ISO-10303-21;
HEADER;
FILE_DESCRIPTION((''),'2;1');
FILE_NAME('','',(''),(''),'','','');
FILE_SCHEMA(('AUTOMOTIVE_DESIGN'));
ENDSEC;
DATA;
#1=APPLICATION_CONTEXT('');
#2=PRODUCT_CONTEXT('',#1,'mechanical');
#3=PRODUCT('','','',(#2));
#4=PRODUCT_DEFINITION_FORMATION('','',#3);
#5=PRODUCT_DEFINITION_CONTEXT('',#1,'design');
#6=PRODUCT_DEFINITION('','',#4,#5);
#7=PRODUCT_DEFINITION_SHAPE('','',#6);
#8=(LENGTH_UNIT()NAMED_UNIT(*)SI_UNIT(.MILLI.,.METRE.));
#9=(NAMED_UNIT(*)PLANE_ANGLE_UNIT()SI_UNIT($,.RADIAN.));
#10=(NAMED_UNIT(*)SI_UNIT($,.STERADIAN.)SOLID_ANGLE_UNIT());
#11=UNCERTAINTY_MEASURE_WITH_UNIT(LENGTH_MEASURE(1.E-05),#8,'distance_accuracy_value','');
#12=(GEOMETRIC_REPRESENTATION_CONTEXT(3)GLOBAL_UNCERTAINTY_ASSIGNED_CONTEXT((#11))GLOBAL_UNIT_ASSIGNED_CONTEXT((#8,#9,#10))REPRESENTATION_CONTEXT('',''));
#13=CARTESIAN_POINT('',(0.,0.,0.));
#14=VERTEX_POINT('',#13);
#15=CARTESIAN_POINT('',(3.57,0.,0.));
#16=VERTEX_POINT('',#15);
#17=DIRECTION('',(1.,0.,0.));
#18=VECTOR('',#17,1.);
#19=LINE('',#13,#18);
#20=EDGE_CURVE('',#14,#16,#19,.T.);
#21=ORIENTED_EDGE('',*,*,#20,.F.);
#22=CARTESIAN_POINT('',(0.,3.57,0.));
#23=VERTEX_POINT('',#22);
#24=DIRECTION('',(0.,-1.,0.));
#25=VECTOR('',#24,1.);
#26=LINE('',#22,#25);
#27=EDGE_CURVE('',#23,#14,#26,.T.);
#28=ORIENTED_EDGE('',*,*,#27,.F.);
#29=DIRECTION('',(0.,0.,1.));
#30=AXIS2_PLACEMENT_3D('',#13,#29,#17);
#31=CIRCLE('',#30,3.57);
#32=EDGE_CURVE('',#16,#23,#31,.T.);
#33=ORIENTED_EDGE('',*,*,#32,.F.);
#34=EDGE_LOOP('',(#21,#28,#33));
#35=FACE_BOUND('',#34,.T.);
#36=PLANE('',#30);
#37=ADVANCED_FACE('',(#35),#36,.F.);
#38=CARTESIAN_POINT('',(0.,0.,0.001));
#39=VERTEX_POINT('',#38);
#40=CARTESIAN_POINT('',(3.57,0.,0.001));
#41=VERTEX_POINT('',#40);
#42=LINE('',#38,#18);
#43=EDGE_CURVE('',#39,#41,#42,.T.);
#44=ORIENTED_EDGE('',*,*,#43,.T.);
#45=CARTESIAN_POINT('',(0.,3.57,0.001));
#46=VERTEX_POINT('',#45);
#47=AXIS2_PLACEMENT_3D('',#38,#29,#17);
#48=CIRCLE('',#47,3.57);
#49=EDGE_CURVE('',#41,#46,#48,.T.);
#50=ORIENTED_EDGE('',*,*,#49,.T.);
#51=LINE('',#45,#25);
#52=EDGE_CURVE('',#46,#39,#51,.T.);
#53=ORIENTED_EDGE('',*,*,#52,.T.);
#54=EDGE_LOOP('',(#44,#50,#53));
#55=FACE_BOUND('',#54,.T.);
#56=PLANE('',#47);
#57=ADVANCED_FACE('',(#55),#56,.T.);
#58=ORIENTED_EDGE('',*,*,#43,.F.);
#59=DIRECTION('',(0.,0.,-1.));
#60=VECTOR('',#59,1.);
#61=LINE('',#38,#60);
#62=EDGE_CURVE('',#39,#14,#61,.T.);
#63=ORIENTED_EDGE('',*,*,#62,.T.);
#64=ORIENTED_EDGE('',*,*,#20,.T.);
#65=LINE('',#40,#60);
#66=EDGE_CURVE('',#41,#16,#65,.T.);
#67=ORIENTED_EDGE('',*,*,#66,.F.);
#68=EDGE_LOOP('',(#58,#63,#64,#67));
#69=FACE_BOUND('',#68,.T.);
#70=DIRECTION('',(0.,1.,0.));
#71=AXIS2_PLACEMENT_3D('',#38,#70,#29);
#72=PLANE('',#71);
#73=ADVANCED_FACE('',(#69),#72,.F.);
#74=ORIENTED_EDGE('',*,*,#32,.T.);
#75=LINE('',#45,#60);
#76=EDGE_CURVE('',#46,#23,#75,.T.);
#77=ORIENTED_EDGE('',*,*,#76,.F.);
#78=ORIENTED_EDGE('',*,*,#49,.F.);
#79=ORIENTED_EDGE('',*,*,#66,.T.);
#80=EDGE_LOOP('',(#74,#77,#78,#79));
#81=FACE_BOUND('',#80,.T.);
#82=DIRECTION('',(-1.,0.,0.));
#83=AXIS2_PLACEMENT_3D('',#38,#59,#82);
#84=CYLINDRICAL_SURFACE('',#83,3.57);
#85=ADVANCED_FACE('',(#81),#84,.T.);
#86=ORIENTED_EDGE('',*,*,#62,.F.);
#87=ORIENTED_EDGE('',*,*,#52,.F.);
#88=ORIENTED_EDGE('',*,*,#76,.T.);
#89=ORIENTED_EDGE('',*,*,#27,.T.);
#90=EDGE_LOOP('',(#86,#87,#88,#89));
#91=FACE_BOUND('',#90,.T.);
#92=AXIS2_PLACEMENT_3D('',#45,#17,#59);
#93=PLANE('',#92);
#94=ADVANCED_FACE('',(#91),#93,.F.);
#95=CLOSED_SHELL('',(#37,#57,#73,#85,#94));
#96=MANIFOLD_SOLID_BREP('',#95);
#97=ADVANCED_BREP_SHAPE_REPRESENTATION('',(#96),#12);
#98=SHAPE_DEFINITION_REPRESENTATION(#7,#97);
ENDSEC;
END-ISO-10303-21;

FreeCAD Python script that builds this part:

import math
import FreeCAD as App
import Part
import Sketcher
from FreeCAD import Vector

doc = App.newDocument("Part")
params = doc.addObject("Spreadsheet::Sheet", "Params")
for row, (alias, value) in enumerate([
    ("sketch1_radius", "3.57 mm"),
    ("pad1_length", "0.001 mm"),
], start=1):
    params.set(f"A{row}", alias)
    params.set(f"B{row}", "=" + value)
    params.setAlias(f"B{row}", alias)

body = doc.addObject("PartDesign::Body", "Body")

sketch1 = doc.addObject("Sketcher::SketchObject", "Sketch")
body.addObject(sketch1)
sketch1.AttachmentSupport = (doc.XY_Plane, [""])
sketch1.MapMode = "FlatFace"
sketch1.addGeometry(Part.LineSegment(Vector(0, 0, 0), Vector(3.6, 0, 0)), False)
sketch1.addGeometry(Part.ArcOfCircle(Part.Circle(Vector(0, 0, 0), Vector(0, 0, 1), 3.6), math.radians(0), math.radians(90)), False)
sketch1.addGeometry(Part.LineSegment(Vector(0, 3.6, 0), Vector(0, 0, 0)), False)
sketch1.addConstraint(Sketcher.Constraint("Coincident", 0, 2, 1, 1))
sketch1.addConstraint(Sketcher.Constraint("Coincident", 1, 2, 2, 1))
sketch1.addConstraint(Sketcher.Constraint("Coincident", 2, 2, 0, 1))
sketch1.addConstraint(Sketcher.Constraint("Horizontal", 0))
sketch1.addConstraint(Sketcher.Constraint("Vertical", 2))
sketch1.addConstraint(Sketcher.Constraint("Coincident", 1, 3, -1, 1))
sketch1.addConstraint(Sketcher.Constraint("Coincident", 2, 2, -1, 1))
sketch1.addConstraint(Sketcher.Constraint("Radius", 1, 3.57))
sketch1.setExpression("Constraints[7]", "Params.sketch1_radius")
pad1 = doc.addObject("PartDesign::Pad", "Pad")
body.addObject(pad1)
pad1.Profile = sketch1
pad1.setExpression("Length", "Params.pad1_length")

doc.recompute()
